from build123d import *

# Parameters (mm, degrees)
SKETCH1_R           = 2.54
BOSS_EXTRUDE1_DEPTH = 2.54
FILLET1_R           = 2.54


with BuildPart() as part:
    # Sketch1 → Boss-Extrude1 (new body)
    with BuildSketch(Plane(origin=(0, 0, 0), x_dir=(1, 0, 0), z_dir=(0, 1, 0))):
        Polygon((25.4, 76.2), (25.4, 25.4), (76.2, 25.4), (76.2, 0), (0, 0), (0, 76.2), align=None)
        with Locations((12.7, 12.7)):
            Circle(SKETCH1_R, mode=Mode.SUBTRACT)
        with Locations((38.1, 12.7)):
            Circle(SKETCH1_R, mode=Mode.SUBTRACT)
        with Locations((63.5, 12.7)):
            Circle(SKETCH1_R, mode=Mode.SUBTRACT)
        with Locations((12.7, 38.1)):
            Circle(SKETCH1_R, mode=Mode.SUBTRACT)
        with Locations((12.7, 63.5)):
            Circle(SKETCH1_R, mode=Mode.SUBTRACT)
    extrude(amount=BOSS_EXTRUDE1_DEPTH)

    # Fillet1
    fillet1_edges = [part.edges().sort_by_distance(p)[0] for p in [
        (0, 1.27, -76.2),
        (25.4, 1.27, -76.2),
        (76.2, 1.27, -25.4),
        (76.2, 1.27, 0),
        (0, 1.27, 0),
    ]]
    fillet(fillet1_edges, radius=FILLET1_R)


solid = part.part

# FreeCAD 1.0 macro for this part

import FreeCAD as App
import Part
import Sketcher
from FreeCAD import Vector
Q = App.Units.Quantity


def edges_at(feature, points):
    """Names of the edges that pass closest to the given points."""
    edges = feature.Shape.Edges
    near = lambda p: min(range(len(edges)), key=lambda i: edges[i].distToShape(Part.Vertex(*p))[0])
    return sorted({f"Edge{near(p) + 1}" for p in points})

doc = App.newDocument("Part")
body = doc.addObject("PartDesign::Body", "Body")

# Sketch on XZ plane
sketch1 = doc.addObject("Sketcher::SketchObject", "Sketch")
body.addObject(sketch1)
sketch1.AttachmentSupport = (doc.XZ_Plane, [""])
sketch1.MapMode = "FlatFace"
sketch1.addGeometry(Part.LineSegment(Vector(25.4, -25.4, 0), Vector(25.4, -76.2, 0)), False)
sketch1.addGeometry(Part.LineSegment(Vector(25.4, -76.2, 0), Vector(0, -76.2, 0)), False)
sketch1.addGeometry(Part.LineSegment(Vector(0, -76.2, 0), Vector(0, 0, 0)), False)
sketch1.addGeometry(Part.LineSegment(Vector(0, 0, 0), Vector(76.2, 0, 0)), False)
sketch1.addGeometry(Part.LineSegment(Vector(76.2, 0, 0), Vector(76.2, -25.4, 0)), False)
sketch1.addGeometry(Part.LineSegment(Vector(76.2, -25.4, 0), Vector(25.4, -25.4, 0)), False)
sketch1.addGeometry(Part.Circle(Vector(63.5, -12.7, 0), Vector(0, 0, 1), 2.5), False)
sketch1.addGeometry(Part.Circle(Vector(38.1, -12.7, 0), Vector(0, 0, 1), 2.5), False)
sketch1.addGeometry(Part.Circle(Vector(12.7, -12.7, 0), Vector(0, 0, 1), 2.5), False)
sketch1.addGeometry(Part.Circle(Vector(12.7, -38.1, 0), Vector(0, 0, 1), 2.5), False)
sketch1.addGeometry(Part.Circle(Vector(12.7, -63.5, 0), Vector(0, 0, 1), 2.5), False)
sketch1.addConstraint(Sketcher.Constraint("Coincident", 0, 2, 1, 1))
sketch1.addConstraint(Sketcher.Constraint("Coincident", 1, 2, 2, 1))
sketch1.addConstraint(Sketcher.Constraint("Coincident", 2, 2, 3, 1))
sketch1.addConstraint(Sketcher.Constraint("Coincident", 3, 2, 4, 1))
sketch1.addConstraint(Sketcher.Constraint("Coincident", 4, 2, 5, 1))
sketch1.addConstraint(Sketcher.Constraint("Coincident", 5, 2, 0, 1))
sketch1.addConstraint(Sketcher.Constraint("Vertical", 0))
sketch1.addConstraint(Sketcher.Constraint("Horizontal", 1))
sketch1.addConstraint(Sketcher.Constraint("Vertical", 2))
sketch1.addConstraint(Sketcher.Constraint("Horizontal", 3))
sketch1.addConstraint(Sketcher.Constraint("Vertical", 4))
sketch1.addConstraint(Sketcher.Constraint("Horizontal", 5))
sketch1.addConstraint(Sketcher.Constraint("Coincident", 2, 2, -1, 1))
sketch1.addConstraint(Sketcher.Constraint("Equal", 6, 7))
sketch1.addConstraint(Sketcher.Constraint("Equal", 7, 8))
sketch1.addConstraint(Sketcher.Constraint("Equal", 8, 9))
sketch1.addConstraint(Sketcher.Constraint("Equal", 9, 10))
sketch1.addConstraint(Sketcher.Constraint("Horizontal", 6, 3, 7, 3))
sketch1.addConstraint(Sketcher.Constraint("Horizontal", 7, 3, 8, 3))
sketch1.addConstraint(Sketcher.Constraint("Vertical", 8, 3, 9, 3))
sketch1.addConstraint(Sketcher.Constraint("Vertical", 9, 3, 10, 3))
sketch1.addConstraint(Sketcher.Constraint("Equal", 5, 0))
sketch1.addConstraint(Sketcher.Constraint("Equal", 3, 2))
sketch1.addConstraint(Sketcher.Constraint("Diameter", 6, Q("0.2 in")))
sketch1.addConstraint(Sketcher.Constraint("DistanceX", 1, 2, 1, 1, Q("1 in")))
sketch1.addConstraint(Sketcher.Constraint("DistanceX", 3, 1, 3, 2, Q("3 in")))
sketch1.addConstraint(Sketcher.Constraint("DistanceX", 7, 3, 6, 3, Q("1 in")))
sketch1.addConstraint(Sketcher.Constraint("DistanceX", 8, 3, 7, 3, Q("1 in")))
sketch1.addConstraint(Sketcher.Constraint("DistanceY", 9, 3, 8, 3, Q("1 in")))
sketch1.addConstraint(Sketcher.Constraint("DistanceY", 10, 3, 9, 3, Q("1 in")))
sketch1.addConstraint(Sketcher.Constraint("DistanceX", -1, 1, 6, 3, Q("2.5 in")))
sketch1.addConstraint(Sketcher.Constraint("DistanceY", 6, 3, -1, 1, Q("0.5 in")))
pad1 = doc.addObject("PartDesign::Pad", "Pad")
body.addObject(pad1)
pad1.Profile = sketch1
pad1.Length = Q("0.1 in")
pad1.Reversed = True
doc.recompute()

fillet = doc.addObject("PartDesign::Fillet", "Fillet")
body.addObject(fillet)
fillet.Base = (pad1, edges_at(pad1, [
    (0, 1.27, -76.2),
    (25.4, 1.27, -76.2),
    (76.2, 1.27, -25.4),
    (76.2, 1.27, 0),
    (0, 1.27, 0),
]))
fillet.Radius = Q("0.1 in")

doc.recompute()
